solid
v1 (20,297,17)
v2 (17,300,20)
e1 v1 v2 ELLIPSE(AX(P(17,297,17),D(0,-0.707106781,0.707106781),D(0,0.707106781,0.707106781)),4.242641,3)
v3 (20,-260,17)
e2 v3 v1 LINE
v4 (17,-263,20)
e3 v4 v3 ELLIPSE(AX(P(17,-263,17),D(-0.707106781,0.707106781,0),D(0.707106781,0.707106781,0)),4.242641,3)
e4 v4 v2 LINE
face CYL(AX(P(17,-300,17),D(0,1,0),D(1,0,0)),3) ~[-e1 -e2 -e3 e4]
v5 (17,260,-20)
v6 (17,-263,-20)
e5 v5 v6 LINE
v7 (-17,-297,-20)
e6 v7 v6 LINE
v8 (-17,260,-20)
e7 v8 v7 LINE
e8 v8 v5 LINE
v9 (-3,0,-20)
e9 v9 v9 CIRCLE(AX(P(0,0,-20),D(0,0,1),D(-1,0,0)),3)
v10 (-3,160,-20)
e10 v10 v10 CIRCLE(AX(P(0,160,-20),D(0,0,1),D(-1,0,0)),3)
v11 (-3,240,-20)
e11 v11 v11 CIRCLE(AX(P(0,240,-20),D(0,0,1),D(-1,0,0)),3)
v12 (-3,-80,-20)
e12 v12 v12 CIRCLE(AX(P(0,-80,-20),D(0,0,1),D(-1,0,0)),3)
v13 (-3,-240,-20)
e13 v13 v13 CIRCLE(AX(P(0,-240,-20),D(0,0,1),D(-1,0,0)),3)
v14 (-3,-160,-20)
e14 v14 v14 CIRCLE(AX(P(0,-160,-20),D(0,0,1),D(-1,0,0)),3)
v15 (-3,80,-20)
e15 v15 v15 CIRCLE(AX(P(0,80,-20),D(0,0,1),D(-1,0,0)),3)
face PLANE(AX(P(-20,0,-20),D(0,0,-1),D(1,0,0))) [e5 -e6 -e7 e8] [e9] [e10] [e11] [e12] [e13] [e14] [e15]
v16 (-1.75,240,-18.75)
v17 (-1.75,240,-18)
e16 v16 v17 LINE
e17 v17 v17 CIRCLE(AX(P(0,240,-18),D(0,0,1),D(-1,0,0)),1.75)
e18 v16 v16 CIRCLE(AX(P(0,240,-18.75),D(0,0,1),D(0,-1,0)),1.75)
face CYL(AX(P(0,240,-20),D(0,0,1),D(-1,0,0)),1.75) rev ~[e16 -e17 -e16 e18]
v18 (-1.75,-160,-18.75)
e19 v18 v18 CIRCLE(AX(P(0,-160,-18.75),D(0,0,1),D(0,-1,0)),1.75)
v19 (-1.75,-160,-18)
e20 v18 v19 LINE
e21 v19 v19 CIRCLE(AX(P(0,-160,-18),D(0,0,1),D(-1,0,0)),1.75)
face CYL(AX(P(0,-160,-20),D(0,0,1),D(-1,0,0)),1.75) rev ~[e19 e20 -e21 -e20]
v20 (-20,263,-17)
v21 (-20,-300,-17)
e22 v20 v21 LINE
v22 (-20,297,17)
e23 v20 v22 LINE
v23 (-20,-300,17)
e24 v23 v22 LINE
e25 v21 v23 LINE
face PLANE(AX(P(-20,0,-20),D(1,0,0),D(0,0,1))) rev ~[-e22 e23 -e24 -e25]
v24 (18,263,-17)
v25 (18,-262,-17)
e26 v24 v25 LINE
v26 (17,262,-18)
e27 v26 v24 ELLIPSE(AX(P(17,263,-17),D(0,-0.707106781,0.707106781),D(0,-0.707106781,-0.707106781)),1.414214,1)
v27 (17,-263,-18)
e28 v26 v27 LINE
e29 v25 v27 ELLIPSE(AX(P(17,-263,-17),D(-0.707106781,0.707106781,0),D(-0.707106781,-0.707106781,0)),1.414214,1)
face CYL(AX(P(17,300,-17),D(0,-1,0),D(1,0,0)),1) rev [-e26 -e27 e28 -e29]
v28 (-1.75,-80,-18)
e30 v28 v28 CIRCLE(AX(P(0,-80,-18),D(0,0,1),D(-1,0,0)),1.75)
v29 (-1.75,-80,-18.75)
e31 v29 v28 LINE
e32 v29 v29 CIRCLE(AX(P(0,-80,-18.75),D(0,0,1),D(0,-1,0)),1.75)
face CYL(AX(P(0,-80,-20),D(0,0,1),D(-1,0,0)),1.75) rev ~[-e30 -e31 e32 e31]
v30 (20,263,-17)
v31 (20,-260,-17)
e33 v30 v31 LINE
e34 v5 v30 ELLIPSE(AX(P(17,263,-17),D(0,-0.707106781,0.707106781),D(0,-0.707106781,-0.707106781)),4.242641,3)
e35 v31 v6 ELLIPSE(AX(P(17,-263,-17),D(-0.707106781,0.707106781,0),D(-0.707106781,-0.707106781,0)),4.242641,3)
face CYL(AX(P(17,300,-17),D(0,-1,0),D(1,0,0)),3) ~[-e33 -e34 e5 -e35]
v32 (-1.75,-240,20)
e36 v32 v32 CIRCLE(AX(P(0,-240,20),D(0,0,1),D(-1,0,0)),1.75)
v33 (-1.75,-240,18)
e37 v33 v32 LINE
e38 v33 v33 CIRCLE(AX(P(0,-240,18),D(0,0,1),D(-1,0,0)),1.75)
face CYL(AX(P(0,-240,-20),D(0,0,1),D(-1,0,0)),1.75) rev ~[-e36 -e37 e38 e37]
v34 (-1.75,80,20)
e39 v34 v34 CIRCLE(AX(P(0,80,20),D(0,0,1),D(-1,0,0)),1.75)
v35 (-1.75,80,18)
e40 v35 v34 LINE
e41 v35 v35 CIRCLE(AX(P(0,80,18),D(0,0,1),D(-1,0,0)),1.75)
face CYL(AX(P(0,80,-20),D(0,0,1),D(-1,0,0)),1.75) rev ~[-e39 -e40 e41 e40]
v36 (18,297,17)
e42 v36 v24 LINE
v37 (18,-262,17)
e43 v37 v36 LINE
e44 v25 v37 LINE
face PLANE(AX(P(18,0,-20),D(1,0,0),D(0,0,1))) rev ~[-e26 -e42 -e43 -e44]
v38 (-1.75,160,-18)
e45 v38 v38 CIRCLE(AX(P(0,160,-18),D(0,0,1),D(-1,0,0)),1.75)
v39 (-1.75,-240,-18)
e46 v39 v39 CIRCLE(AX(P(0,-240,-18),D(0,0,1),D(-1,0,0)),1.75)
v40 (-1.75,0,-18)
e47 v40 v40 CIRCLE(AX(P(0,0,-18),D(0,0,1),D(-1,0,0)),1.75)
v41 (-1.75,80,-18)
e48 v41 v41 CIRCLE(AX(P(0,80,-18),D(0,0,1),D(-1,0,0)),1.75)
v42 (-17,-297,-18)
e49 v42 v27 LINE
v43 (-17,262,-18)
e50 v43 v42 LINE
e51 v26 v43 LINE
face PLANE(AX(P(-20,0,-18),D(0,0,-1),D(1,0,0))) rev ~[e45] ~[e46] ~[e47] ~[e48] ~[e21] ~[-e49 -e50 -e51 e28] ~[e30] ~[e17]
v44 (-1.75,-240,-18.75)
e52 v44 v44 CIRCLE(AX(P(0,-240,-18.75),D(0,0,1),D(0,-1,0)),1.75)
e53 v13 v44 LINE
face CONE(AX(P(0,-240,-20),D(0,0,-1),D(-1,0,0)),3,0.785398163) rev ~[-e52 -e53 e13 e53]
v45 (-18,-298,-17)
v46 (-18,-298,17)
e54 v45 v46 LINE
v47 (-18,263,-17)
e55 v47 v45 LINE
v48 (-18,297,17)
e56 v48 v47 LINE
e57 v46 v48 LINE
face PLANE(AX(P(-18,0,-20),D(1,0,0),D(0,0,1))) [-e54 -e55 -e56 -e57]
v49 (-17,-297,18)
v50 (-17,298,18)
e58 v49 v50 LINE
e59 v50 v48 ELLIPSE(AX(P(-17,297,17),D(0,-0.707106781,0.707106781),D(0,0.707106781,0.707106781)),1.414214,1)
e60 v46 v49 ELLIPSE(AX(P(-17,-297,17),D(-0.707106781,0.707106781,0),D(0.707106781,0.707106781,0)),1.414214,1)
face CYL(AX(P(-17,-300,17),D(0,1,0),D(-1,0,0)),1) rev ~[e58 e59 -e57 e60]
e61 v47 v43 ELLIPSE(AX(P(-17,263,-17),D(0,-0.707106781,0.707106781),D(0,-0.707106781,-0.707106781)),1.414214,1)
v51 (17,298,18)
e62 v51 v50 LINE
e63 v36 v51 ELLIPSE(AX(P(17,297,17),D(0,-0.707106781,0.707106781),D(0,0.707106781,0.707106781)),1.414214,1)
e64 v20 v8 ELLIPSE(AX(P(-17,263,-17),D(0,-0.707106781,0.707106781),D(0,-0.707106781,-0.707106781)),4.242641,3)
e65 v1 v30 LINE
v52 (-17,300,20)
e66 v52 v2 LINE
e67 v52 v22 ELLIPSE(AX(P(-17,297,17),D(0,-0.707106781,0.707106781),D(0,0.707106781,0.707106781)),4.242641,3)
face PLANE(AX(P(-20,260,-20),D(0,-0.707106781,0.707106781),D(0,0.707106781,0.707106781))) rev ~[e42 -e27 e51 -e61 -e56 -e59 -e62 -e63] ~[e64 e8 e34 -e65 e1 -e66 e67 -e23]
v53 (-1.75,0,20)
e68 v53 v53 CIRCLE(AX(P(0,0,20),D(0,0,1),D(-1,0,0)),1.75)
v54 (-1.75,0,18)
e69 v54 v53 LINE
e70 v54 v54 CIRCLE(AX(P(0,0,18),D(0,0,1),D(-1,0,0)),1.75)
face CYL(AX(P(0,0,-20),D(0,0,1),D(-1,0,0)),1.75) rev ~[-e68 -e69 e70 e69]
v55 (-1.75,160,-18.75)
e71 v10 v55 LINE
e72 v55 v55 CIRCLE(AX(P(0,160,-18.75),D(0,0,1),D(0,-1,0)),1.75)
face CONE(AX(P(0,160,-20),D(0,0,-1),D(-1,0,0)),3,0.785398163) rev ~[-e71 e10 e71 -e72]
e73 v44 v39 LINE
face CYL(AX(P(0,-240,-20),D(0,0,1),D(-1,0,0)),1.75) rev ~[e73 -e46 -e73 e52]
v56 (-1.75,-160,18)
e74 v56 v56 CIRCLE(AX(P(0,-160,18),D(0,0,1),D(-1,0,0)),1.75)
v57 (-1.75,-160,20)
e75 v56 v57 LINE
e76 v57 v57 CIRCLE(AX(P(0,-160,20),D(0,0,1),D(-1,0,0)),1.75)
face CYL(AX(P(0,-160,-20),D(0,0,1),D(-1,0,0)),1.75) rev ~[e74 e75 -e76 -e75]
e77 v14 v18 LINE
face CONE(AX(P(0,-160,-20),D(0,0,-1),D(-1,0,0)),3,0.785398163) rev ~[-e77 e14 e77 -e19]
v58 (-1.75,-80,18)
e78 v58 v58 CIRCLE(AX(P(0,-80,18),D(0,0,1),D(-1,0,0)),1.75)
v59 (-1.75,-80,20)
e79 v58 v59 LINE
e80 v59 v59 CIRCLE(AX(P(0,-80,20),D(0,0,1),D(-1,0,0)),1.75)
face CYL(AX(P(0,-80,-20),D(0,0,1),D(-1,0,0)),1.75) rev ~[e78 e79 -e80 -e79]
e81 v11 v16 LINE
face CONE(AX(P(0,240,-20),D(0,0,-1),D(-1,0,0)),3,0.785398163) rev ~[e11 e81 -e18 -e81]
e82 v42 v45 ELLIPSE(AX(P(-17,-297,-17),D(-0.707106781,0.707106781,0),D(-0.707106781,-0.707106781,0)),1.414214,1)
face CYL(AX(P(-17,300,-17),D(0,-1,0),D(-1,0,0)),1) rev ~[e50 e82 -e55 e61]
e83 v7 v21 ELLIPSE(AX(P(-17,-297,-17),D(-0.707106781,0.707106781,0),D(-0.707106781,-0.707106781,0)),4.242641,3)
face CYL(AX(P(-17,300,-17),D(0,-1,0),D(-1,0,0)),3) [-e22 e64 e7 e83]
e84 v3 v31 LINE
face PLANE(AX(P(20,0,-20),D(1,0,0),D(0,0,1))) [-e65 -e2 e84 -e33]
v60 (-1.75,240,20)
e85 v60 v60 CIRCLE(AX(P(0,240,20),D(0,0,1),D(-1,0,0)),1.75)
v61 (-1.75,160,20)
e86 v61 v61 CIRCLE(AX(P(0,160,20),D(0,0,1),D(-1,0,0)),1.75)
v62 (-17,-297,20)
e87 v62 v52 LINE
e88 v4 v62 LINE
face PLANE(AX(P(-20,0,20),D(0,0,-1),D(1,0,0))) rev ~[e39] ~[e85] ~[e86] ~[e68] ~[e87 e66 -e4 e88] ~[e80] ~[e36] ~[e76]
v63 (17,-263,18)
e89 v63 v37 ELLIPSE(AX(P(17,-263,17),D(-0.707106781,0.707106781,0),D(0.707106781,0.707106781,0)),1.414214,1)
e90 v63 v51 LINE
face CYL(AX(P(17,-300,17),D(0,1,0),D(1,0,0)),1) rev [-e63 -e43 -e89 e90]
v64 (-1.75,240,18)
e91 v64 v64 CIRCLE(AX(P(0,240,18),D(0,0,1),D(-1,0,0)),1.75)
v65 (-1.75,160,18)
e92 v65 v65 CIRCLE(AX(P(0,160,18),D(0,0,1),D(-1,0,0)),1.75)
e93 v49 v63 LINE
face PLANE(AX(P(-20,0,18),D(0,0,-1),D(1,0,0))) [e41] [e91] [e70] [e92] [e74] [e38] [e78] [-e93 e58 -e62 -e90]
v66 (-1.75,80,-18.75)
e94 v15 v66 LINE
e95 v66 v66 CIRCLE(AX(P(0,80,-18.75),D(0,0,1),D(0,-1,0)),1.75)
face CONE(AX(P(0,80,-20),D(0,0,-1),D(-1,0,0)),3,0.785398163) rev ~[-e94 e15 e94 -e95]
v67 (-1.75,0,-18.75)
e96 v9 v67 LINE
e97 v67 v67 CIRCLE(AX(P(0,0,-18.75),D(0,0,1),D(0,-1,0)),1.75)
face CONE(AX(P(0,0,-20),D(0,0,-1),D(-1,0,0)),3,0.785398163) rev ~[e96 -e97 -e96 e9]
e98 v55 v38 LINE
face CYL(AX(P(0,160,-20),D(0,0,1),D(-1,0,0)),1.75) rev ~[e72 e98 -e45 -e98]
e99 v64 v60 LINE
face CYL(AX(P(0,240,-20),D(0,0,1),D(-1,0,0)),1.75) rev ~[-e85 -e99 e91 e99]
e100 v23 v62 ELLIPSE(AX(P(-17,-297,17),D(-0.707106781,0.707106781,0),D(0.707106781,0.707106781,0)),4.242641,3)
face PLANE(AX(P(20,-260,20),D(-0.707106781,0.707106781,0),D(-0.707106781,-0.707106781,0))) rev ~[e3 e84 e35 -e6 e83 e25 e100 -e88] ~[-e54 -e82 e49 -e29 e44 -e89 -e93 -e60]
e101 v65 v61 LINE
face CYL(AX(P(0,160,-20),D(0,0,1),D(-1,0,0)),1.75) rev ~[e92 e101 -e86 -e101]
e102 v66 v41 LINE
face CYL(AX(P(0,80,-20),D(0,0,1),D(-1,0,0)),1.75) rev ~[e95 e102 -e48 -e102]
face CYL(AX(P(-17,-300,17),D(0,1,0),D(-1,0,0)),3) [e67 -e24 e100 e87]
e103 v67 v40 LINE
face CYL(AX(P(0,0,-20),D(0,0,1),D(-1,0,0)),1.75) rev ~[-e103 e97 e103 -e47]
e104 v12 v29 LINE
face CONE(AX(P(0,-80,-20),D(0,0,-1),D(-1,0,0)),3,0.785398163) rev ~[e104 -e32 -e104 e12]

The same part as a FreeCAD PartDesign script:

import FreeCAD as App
import Part
import Sketcher
from FreeCAD import Vector
Q = App.Units.Quantity


def edges_at(feature, points):
    """Names of the edges that pass closest to the given points."""
    edges = feature.Shape.Edges
    near = lambda p: min(range(len(edges)), key=lambda i: edges[i].distToShape(Part.Vertex(*p))[0])
    return sorted({f"Edge{near(p) + 1}" for p in points})


def faces_at(feature, points):
    """Names of the faces that lie closest to the given points."""
    faces = feature.Shape.Faces
    near = lambda p: min(range(len(faces)), key=lambda i: faces[i].distToShape(Part.Vertex(*p))[0])
    return sorted({f"Face{near(p) + 1}" for p in points})

doc = App.newDocument("Part")
body = doc.addObject("PartDesign::Body", "Body")

# Sketch on XZ plane
sketch1 = doc.addObject("Sketcher::SketchObject", "Sketch")
body.addObject(sketch1)
sketch1.AttachmentSupport = (doc.XZ_Plane, [""])
sketch1.MapMode = "FlatFace"
sketch1.addGeometry([
    Part.LineSegment(Vector(-20, 20, 0), Vector(-20, -20, 0)),
    Part.LineSegment(Vector(-20, -20, 0), Vector(20, -20, 0)),
    Part.LineSegment(Vector(20, -20, 0), Vector(20, 20, 0)),
    Part.LineSegment(Vector(20, 20, 0), Vector(-20, 20, 0)),
], False)
sketch1.addConstraint([
    Sketcher.Constraint("Coincident", 0, 2, 1, 1),
    Sketcher.Constraint("Coincident", 1, 2, 2, 1),
    Sketcher.Constraint("Coincident", 2, 2, 3, 1),
    Sketcher.Constraint("Coincident", 3, 2, 0, 1),
    Sketcher.Constraint("Vertical", 0),
    Sketcher.Constraint("Horizontal", 1),
    Sketcher.Constraint("Vertical", 2),
    Sketcher.Constraint("Horizontal", 3),
    Sketcher.Constraint("Symmetric", 0, 2, 2, 2, -1, 1),
    Sketcher.Constraint("Equal", 3, 0),
    Sketcher.Constraint("DistanceX", 1, 1, 1, 2, Q("40 mm")),
])
pad1 = doc.addObject("PartDesign::Pad", "Pad")
body.addObject(pad1)
pad1.Profile = sketch1
pad1.Length = 600
pad1.Midplane = True
doc.recompute()

fillet = doc.addObject("PartDesign::Fillet", "Fillet")
body.addObject(fillet)
fillet.Base = (pad1, edges_at(pad1, [
    (20, 0, 20),
    (-20, 0, 20),
    (20, 0, -20),
    (-20, 0, -20),
]))
fillet.Radius = 3
doc.recompute()

thickness = doc.addObject("PartDesign::Thickness", "Thickness")
body.addObject(thickness)
thickness.Base = (fillet, faces_at(fillet, [(0, -300, 0), (0, 300, 0)]))
thickness.Value = 2
thickness.Reversed = True
thickness.Join = "Arc"

# Sketch on YZ plane
sketch2 = doc.addObject("Sketcher::SketchObject", "Sketch001")
body.addObject(sketch2)
sketch2.AttachmentSupport = (doc.YZ_Plane, [""])
sketch2.MapMode = "FlatFace"
sketch2.AttachmentOffset = App.Placement(Vector(0, 0, -20), App.Rotation())
sketch2.addGeometry([
    Part.LineSegment(Vector(300, 20, 0), Vector(300, -20, 0)),
    Part.LineSegment(Vector(300, -20, 0), Vector(260, -20, 0)),
    Part.LineSegment(Vector(260, -20, 0), Vector(300, 20, 0)),
], False)
sketch2.addConstraint([
    Sketcher.Constraint("Coincident", 0, 2, 1, 1),
    Sketcher.Constraint("Coincident", 1, 2, 2, 1),
    Sketcher.Constraint("Coincident", 2, 2, 0, 1),
    Sketcher.Constraint("Vertical", 0),
    Sketcher.Constraint("Horizontal", 1),
    Sketcher.Constraint("Equal", 1, 0),
    Sketcher.Constraint("DistanceX", 1, 2, 1, 1, Q("40 mm")),
    Sketcher.Constraint("DistanceX", -1, 1, 0, 2, Q("300 mm")),
    Sketcher.Constraint("DistanceY", 0, 2, -1, 1, Q("20 mm")),
])
pocket1 = doc.addObject("PartDesign::Pocket", "Pocket")
body.addObject(pocket1)
pocket1.Profile = sketch2
pocket1.Type = "ThroughAll"
pocket1.Reversed = True

# Sketch on XY plane
sketch3 = doc.addObject("Sketcher::SketchObject", "Sketch002")
body.addObject(sketch3)
sketch3.AttachmentSupport = (doc.XY_Plane, [""])
sketch3.MapMode = "FlatFace"
sketch3.AttachmentOffset = App.Placement(Vector(0, 0, 20), App.Rotation())
sketch3.addGeometry([
    Part.LineSegment(Vector(20, -300, 0), Vector(20, -260, 0)),
    Part.LineSegment(Vector(20, -260, 0), Vector(-20, -300, 0)),
    Part.LineSegment(Vector(-20, -300, 0), Vector(20, -300, 0)),
], False)
sketch3.addConstraint([
    Sketcher.Constraint("Coincident", 0, 2, 1, 1),
    Sketcher.Constraint("Coincident", 1, 2, 2, 1),
    Sketcher.Constraint("Coincident", 2, 2, 0, 1),
    Sketcher.Constraint("Vertical", 0),
    Sketcher.Constraint("Horizontal", 2),
    Sketcher.Constraint("Equal", 2, 0),
    Sketcher.Constraint("DistanceX", 2, 1, 2, 2, Q("40 mm")),
    Sketcher.Constraint("DistanceX", -1, 1, 0, 2, Q("20 mm")),
    Sketcher.Constraint("DistanceY", 0, 2, -1, 1, Q("260 mm")),
])
pocket2 = doc.addObject("PartDesign::Pocket", "Pocket001")
body.addObject(pocket2)
pocket2.Profile = sketch3
pocket2.Type = "ThroughAll"

# Sketch on XY plane
sketch4 = doc.addObject("Sketcher::SketchObject", "Sketch003")
body.addObject(sketch4)
sketch4.AttachmentSupport = (doc.XY_Plane, [""])
sketch4.MapMode = "FlatFace"
sketch4.AttachmentOffset = App.Placement(Vector(0, 0, -20), App.Rotation())
sketch4.addGeometry([
    Part.Circle(Vector(0, -240, 0), Vector(0, 0, 1), 1.8),  # 0
    Part.Circle(Vector(0, -160, 0), Vector(0, 0, 1), 1.8),  # 1
    Part.Circle(Vector(0, -80, 0), Vector(0, 0, 1), 1.8),  # 2
    Part.Circle(Vector(0, 0, 0), Vector(0, 0, 1), 1.8),  # 3
    Part.Circle(Vector(0, 80, 0), Vector(0, 0, 1), 1.8),  # 4
    Part.Circle(Vector(0, 160, 0), Vector(0, 0, 1), 1.8),  # 5
    Part.Circle(Vector(0, 240, 0), Vector(0, 0, 1), 1.8),  # 6
], False)
sketch4.addConstraint([
    Sketcher.Constraint("Coincident", 3, 3, -1, 1),
    Sketcher.Constraint("Equal", 0, 1),
    Sketcher.Constraint("Equal", 1, 2),
    Sketcher.Constraint("Equal", 2, 3),
    Sketcher.Constraint("Equal", 3, 4),
    Sketcher.Constraint("Equal", 4, 5),
    Sketcher.Constraint("Equal", 5, 6),
    Sketcher.Constraint("Symmetric", 2, 3, 4, 3, -1, 1),
    Sketcher.Constraint("Symmetric", 1, 3, 5, 3, -1, 1),
    Sketcher.Constraint("Symmetric", 0, 3, 6, 3, -1, 1),
    Sketcher.Constraint("PointOnObject", 0, 3, -2),
    Sketcher.Constraint("PointOnObject", 1, 3, -2),
    Sketcher.Constraint("PointOnObject", 2, 3, -2),
    Sketcher.Constraint("Diameter", 0, Q("3.5 mm")),
    Sketcher.Constraint("DistanceY", 0, 3, -1, 1, Q("240 mm")),
    Sketcher.Constraint("DistanceY", 1, 3, -1, 1, Q("160 mm")),
    Sketcher.Constraint("DistanceY", 2, 3, -1, 1, Q("80 mm")),
])
doc.recompute()
hole = doc.addObject("PartDesign::Hole", "Hole")
body.addObject(hole)
hole.Profile = sketch4
hole.ThreadType = "None"
hole.Diameter = 3.5
hole.DepthType = "ThroughAll"
hole.HoleCutType = "Countersink"
hole.HoleCutDiameter = 6
hole.HoleCutCountersinkAngle = 90
hole.Reversed = True

doc.recompute()
